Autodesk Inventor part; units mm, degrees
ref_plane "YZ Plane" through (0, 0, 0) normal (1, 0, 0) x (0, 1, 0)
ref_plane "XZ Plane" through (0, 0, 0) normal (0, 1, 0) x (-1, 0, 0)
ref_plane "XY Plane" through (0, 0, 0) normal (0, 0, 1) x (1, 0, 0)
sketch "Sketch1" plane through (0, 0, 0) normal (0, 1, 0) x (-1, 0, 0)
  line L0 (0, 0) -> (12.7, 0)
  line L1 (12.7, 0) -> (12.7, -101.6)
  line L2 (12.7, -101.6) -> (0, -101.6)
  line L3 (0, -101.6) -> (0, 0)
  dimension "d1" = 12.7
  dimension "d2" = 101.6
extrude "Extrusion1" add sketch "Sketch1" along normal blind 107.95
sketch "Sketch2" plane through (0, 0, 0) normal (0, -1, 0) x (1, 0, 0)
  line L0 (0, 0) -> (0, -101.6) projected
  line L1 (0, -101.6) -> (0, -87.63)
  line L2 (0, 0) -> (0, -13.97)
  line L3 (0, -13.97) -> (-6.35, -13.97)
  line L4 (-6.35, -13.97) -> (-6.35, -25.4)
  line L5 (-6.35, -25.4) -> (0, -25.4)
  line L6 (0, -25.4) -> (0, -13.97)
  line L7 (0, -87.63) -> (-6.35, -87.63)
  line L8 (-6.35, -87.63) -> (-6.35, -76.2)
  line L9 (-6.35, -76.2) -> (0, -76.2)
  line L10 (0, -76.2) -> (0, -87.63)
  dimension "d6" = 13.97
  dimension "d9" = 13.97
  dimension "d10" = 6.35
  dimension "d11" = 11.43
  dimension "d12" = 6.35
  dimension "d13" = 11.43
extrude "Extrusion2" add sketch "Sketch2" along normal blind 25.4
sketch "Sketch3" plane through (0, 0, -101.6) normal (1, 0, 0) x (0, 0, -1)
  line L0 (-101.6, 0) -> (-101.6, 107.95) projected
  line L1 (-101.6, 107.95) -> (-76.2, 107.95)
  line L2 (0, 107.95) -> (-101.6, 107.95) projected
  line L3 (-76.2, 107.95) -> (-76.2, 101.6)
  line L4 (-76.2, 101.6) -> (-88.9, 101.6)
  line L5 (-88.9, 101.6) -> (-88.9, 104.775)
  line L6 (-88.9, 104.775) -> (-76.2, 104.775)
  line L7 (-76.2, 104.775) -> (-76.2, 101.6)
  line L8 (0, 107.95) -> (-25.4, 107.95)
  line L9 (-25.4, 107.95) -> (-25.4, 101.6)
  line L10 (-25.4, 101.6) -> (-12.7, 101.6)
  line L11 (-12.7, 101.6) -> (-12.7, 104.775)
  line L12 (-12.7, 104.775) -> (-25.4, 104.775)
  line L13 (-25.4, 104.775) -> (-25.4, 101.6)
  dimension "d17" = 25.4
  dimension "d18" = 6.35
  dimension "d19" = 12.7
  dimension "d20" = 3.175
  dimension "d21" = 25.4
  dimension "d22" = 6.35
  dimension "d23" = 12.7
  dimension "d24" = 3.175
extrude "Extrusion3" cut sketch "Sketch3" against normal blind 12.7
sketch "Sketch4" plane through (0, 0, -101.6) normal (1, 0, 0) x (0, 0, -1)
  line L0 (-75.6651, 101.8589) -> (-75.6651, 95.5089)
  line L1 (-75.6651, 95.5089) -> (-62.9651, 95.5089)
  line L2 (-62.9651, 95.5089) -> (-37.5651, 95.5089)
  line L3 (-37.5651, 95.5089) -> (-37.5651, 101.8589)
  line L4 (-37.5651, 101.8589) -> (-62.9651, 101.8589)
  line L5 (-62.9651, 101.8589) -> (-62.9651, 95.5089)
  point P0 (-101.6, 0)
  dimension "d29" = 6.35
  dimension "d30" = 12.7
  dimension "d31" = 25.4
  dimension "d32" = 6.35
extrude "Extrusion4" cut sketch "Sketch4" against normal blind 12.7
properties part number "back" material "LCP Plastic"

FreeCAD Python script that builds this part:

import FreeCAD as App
import Part
import Sketcher

V = App.Vector
Q = App.Units.Quantity

doc = App.newDocument("Part")
body = doc.addObject("PartDesign::Body", "Body")

sketch1 = body.newObject("Sketcher::SketchObject", "Sketch")
sketch1.AttachmentSupport = (doc.getObject("XZ_Plane"), [""])
sketch1.MapMode = "FlatFace"
sketch1.addGeometry([
    Part.LineSegment(V(-13, 0, 0), V(0, 0, 0)),
    Part.LineSegment(V(0, 0, 0), V(0, -102, 0)),
    Part.LineSegment(V(0, -102, 0), V(-13, -102, 0)),
    Part.LineSegment(V(-13, -102, 0), V(-13, 0, 0)),
], False)
sketch1.addConstraint([
    Sketcher.Constraint("Coincident", 0, 2, 1, 1),
    Sketcher.Constraint("Coincident", 1, 2, 2, 1),
    Sketcher.Constraint("Coincident", 2, 2, 3, 1),
    Sketcher.Constraint("Coincident", 3, 2, 0, 1),
    Sketcher.Constraint("Horizontal", 0),
    Sketcher.Constraint("Vertical", 1),
    Sketcher.Constraint("Horizontal", 2),
    Sketcher.Constraint("Vertical", 3),
    Sketcher.Constraint("Coincident", 0, 2, -1, 1),
    Sketcher.Constraint("DistanceY", 1, 2, 1, 1, Q("4 in")),
    Sketcher.Constraint("DistanceX", 0, 1, 0, 2, Q("0.5 in")),
])
pad1 = body.newObject("PartDesign::Pad", "Pad")
pad1.Profile = sketch1
pad1.Length = Q("4.25 in")
pad1.Reversed = True

sketch2 = body.newObject("Sketcher::SketchObject", "Sketch001")
sketch2.AttachmentSupport = (doc.getObject("XZ_Plane"), [""])
sketch2.MapMode = "FlatFace"
sketch2.addGeometry([
    Part.LineSegment(V(0, -88, 0), V(0, -76, 0)),
    Part.LineSegment(V(0, -76, 0), V(-6, -76, 0)),
    Part.LineSegment(V(-6, -76, 0), V(-6, -88, 0)),
    Part.LineSegment(V(-6, -88, 0), V(0, -88, 0)),
    Part.LineSegment(V(0, -25, 0), V(0, -14, 0)),
    Part.LineSegment(V(0, -14, 0), V(-6, -14, 0)),
    Part.LineSegment(V(-6, -14, 0), V(-6, -25, 0)),
    Part.LineSegment(V(-6, -25, 0), V(0, -25, 0)),
], False)
sketch2.addConstraint([
    Sketcher.Constraint("Coincident", 0, 2, 1, 1),
    Sketcher.Constraint("Coincident", 1, 2, 2, 1),
    Sketcher.Constraint("Coincident", 2, 2, 3, 1),
    Sketcher.Constraint("Coincident", 3, 2, 0, 1),
    Sketcher.Constraint("Coincident", 4, 2, 5, 1),
    Sketcher.Constraint("Coincident", 5, 2, 6, 1),
    Sketcher.Constraint("Coincident", 6, 2, 7, 1),
    Sketcher.Constraint("Coincident", 7, 2, 4, 1),
    Sketcher.Constraint("Vertical", 0),
    Sketcher.Constraint("Horizontal", 1),
    Sketcher.Constraint("Vertical", 2),
    Sketcher.Constraint("Horizontal", 3),
    Sketcher.Constraint("Vertical", 4),
    Sketcher.Constraint("Horizontal", 5),
    Sketcher.Constraint("Vertical", 6),
    Sketcher.Constraint("Horizontal", 7),
    Sketcher.Constraint("PointOnObject", 0, 2, -2),
    Sketcher.Constraint("PointOnObject", 4, 2, -2),
    Sketcher.Constraint("Vertical", 2, 2, 5, 2),
    Sketcher.Constraint("Equal", 2, 4),
    Sketcher.Constraint("DistanceX", 1, 2, 1, 1, Q("0.25 in")),
    Sketcher.Constraint("DistanceY", 0, 1, 0, 2, Q("0.45 in")),
    Sketcher.Constraint("DistanceY", 4, 2, -1, 1, Q("0.55 in")),
    Sketcher.Constraint("DistanceY", 0, 2, -1, 1, Q("3 in")),
])
pad2 = body.newObject("PartDesign::Pad", "Pad001")
pad2.Profile = sketch2
pad2.Length = Q("1 in")

sketch3 = body.newObject("Sketcher::SketchObject", "Sketch002")
sketch3.AttachmentSupport = (doc.getObject("YZ_Plane"), [""])
sketch3.MapMode = "FlatFace"
sketch3.addGeometry([
    Part.LineSegment(V(101.6, -25.4, 0), V(104.8, -25.4, 0)),
    Part.LineSegment(V(104.8, -25.4, 0), V(104.8, -12.7, 0)),
    Part.LineSegment(V(104.8, -12.7, 0), V(101.6, -12.7, 0)),
    Part.LineSegment(V(101.6, -12.7, 0), V(101.6, -25.4, 0)),
    Part.LineSegment(V(104.8, -88.9, 0), V(104.8, -76.2, 0)),
    Part.LineSegment(V(104.8, -76.2, 0), V(101.6, -76.2, 0)),
    Part.LineSegment(V(101.6, -76.2, 0), V(101.6, -88.9, 0)),
    Part.LineSegment(V(101.6, -88.9, 0), V(104.8, -88.9, 0)),
], False)
sketch3.addConstraint([
    Sketcher.Constraint("Coincident", 0, 2, 1, 1),
    Sketcher.Constraint("Coincident", 1, 2, 2, 1),
    Sketcher.Constraint("Coincident", 2, 2, 3, 1),
    Sketcher.Constraint("Coincident", 3, 2, 0, 1),
    Sketcher.Constraint("Coincident", 4, 2, 5, 1),
    Sketcher.Constraint("Coincident", 5, 2, 6, 1),
    Sketcher.Constraint("Coincident", 6, 2, 7, 1),
    Sketcher.Constraint("Coincident", 7, 2, 4, 1),
    Sketcher.Constraint("Horizontal", 0),
    Sketcher.Constraint("Vertical", 1),
    Sketcher.Constraint("Horizontal", 2),
    Sketcher.Constraint("Vertical", 3),
    Sketcher.Constraint("Vertical", 4),
    Sketcher.Constraint("Horizontal", 5),
    Sketcher.Constraint("Vertical", 6),
    Sketcher.Constraint("Horizontal", 7),
    Sketcher.Constraint("Vertical", 1, 2, 4, 2),
    Sketcher.Constraint("Vertical", 3, 2, 5, 2),
    Sketcher.Constraint("Equal", 3, 4),
    Sketcher.Constraint("DistanceY", 1, 1, 1, 2, Q("0.5 in")),
    Sketcher.Constraint("DistanceY", 0, 2, -1, 1, Q("1 in")),
    Sketcher.Constraint("DistanceX", 0, 1, 0, 2, Q("0.125 in")),
    Sketcher.Constraint("DistanceX", -1, 1, 2, 2, Q("4 in")),
    Sketcher.Constraint("DistanceY", 4, 2, -1, 1, Q("3 in")),
])
pocket1 = body.newObject("PartDesign::Pocket", "Pocket")
pocket1.Profile = sketch3
pocket1.Length = Q("0.5 in")

sketch4 = body.newObject("Sketcher::SketchObject", "Sketch003")
sketch4.AttachmentSupport = (doc.getObject("YZ_Plane"), [""])
sketch4.MapMode = "FlatFace"
sketch4.addGeometry([
    Part.LineSegment(V(102, -39, 0), V(96, -39, 0)),
    Part.LineSegment(V(96, -39, 0), V(96, -64, 0)),
    Part.LineSegment(V(96, -64, 0), V(102, -64, 0)),
    Part.LineSegment(V(102, -64, 0), V(102, -39, 0)),
], False)
sketch4.addConstraint([
    Sketcher.Constraint("Coincident", 0, 2, 1, 1),
    Sketcher.Constraint("Coincident", 1, 2, 2, 1),
    Sketcher.Constraint("Coincident", 2, 2, 3, 1),
    Sketcher.Constraint("Coincident", 3, 2, 0, 1),
    Sketcher.Constraint("Horizontal", 0),
    Sketcher.Constraint("Vertical", 1),
    Sketcher.Constraint("Horizontal", 2),
    Sketcher.Constraint("Vertical", 3),
    Sketcher.Constraint("DistanceY", 1, 2, 1, 1, Q("1 in")),
    Sketcher.Constraint("DistanceX", 0, 2, 0, 1, Q("0.25 in")),
    Sketcher.Constraint("DistanceX", -1, 1, 0, 2, Q("3.7602 in")),
    Sketcher.Constraint("DistanceY", 0, 2, -1, 1, Q("38.635 mm")),
])
pocket2 = body.newObject("PartDesign::Pocket", "Pocket001")
pocket2.Profile = sketch4
pocket2.Length = Q("0.5 in")

doc.recompute()
